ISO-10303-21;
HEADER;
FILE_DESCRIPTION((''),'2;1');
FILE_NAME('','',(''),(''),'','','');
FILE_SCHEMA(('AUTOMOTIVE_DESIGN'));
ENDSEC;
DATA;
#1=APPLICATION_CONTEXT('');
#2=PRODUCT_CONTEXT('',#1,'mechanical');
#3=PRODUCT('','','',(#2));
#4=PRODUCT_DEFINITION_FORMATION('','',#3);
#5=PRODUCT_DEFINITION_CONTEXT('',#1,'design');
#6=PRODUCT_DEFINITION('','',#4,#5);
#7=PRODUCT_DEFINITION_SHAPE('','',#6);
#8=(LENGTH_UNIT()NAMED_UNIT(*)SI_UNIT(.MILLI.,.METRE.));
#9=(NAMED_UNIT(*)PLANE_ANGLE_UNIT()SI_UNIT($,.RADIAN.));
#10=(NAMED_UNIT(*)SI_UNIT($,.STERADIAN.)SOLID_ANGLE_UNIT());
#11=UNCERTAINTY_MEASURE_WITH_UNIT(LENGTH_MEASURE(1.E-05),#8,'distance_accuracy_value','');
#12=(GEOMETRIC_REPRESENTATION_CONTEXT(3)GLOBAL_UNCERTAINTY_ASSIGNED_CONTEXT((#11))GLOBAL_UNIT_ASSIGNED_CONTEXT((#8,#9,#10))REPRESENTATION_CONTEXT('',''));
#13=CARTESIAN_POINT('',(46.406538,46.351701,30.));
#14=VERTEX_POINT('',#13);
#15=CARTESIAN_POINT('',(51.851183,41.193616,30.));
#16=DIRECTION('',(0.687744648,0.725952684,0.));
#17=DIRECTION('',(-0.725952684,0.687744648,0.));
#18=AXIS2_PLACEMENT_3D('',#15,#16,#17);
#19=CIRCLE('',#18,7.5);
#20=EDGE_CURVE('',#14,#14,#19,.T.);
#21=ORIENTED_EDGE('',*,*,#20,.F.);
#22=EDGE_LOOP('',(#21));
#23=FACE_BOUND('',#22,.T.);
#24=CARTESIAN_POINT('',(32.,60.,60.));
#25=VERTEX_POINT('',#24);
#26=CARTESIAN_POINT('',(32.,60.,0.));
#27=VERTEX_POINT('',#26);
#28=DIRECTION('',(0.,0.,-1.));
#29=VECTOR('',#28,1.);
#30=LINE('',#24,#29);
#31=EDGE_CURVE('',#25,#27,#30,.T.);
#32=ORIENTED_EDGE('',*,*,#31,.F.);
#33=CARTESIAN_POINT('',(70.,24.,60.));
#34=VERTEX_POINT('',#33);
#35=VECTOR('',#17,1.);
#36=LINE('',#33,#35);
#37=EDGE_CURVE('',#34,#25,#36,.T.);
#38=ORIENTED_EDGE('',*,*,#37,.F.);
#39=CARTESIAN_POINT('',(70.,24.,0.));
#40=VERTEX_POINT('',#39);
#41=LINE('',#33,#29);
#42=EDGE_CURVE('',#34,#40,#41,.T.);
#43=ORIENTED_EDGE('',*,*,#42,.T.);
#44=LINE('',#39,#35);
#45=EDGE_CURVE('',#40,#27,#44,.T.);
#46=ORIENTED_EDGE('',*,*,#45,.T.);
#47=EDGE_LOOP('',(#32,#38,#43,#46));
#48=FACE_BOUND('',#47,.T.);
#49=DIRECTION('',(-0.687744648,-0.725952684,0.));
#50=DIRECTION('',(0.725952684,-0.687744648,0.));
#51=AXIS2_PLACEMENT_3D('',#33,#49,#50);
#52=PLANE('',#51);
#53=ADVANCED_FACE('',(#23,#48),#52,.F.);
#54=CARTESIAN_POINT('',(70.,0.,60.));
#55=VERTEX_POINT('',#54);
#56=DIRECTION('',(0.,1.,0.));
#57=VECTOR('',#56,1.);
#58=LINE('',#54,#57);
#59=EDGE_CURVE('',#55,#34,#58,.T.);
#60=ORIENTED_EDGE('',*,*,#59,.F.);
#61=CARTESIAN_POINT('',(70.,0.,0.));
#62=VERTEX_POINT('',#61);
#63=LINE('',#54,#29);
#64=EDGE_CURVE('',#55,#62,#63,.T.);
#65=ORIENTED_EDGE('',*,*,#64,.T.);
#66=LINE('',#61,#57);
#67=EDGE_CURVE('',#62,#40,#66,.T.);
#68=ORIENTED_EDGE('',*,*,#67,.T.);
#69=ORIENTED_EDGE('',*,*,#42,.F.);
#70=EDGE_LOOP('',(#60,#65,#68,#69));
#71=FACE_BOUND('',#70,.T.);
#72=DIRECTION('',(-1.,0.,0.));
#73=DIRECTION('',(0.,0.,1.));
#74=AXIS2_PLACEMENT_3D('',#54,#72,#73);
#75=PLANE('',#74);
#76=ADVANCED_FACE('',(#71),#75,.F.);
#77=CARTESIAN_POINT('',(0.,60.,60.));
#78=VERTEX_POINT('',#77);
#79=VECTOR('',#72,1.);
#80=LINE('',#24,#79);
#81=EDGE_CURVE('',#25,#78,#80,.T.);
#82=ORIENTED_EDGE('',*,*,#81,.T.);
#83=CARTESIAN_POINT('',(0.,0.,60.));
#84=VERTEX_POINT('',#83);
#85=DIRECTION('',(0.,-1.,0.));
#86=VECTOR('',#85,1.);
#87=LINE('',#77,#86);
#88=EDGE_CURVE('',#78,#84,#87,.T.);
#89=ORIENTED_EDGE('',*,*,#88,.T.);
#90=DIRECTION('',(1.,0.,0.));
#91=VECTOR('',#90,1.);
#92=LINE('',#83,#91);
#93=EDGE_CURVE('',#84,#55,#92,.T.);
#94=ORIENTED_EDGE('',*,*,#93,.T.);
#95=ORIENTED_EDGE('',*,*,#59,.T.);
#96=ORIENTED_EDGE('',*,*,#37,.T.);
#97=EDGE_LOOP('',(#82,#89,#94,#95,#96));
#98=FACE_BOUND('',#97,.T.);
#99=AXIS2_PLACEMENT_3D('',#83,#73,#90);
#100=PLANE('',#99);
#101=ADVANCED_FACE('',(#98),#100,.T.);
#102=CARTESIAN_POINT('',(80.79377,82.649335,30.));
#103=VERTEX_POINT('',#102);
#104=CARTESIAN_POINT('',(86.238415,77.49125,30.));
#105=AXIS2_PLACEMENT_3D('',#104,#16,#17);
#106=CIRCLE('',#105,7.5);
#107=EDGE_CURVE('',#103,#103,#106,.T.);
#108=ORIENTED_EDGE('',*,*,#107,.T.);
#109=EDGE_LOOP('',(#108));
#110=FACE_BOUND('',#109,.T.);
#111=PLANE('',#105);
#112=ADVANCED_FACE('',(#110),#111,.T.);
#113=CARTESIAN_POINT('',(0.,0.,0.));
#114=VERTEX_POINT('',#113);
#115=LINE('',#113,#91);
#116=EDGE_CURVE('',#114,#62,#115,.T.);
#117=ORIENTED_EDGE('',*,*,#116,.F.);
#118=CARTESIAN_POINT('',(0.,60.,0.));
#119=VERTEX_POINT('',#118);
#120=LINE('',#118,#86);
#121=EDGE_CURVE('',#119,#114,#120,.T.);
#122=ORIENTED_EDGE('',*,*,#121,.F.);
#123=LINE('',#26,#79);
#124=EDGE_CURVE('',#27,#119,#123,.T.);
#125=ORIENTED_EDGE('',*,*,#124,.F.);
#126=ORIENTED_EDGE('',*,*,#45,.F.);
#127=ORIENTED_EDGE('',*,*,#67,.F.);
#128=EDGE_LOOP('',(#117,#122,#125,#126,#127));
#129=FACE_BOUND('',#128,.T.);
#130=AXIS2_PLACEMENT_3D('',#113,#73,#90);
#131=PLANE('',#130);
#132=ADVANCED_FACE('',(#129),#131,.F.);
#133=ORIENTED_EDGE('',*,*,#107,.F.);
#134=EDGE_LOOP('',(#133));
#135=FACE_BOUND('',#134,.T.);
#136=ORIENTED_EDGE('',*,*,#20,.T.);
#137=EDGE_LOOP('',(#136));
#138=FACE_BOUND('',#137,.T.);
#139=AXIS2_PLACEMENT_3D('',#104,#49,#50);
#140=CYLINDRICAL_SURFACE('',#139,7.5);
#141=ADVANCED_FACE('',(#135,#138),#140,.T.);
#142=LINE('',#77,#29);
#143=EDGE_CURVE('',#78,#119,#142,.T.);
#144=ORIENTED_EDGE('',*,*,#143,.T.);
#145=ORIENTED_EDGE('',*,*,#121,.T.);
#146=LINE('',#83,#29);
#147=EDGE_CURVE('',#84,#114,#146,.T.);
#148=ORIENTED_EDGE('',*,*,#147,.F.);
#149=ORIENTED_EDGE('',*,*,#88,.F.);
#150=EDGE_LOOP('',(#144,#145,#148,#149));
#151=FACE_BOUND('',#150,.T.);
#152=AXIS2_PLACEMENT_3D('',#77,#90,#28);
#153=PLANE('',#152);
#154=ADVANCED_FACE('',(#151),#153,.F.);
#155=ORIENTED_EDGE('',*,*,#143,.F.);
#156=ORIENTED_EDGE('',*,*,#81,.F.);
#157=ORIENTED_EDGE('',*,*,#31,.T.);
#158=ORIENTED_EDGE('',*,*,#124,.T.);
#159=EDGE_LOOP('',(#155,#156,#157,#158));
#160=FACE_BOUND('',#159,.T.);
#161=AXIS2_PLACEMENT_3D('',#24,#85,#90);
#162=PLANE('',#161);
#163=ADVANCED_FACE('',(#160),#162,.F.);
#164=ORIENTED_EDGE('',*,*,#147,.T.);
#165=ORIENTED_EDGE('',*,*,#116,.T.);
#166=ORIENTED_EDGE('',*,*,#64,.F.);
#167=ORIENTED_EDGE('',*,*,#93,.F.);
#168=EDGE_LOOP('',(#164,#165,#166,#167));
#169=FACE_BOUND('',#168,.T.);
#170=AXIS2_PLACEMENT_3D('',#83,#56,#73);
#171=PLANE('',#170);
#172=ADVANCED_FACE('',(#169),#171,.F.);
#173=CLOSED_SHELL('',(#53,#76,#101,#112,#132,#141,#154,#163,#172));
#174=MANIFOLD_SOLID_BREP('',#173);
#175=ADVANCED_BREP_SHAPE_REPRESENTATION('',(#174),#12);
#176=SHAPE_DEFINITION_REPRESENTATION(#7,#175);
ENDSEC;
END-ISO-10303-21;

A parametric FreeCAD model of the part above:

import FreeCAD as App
import Part
import Sketcher
from FreeCAD import Vector
Q = App.Units.Quantity

doc = App.newDocument("Part")
body = doc.addObject("PartDesign::Body", "Body")

sketch1 = body.newObject("Sketcher::SketchObject", "Sketch")
sketch1.AttachmentSupport = (doc.getObject("XY_Plane"), [""])
sketch1.MapMode = "FlatFace"
sketch1.addGeometry(Part.LineSegment(Vector(0, 0, 0), Vector(70, 0, 0)), False)
sketch1.addGeometry(Part.LineSegment(Vector(70, 0, 0), Vector(70, 24, 0)), False)
sketch1.addGeometry(Part.LineSegment(Vector(70, 24, 0), Vector(32, 60, 0)), False)
sketch1.addGeometry(Part.LineSegment(Vector(32, 60, 0), Vector(0, 60, 0)), False)
sketch1.addGeometry(Part.LineSegment(Vector(0, 60, 0), Vector(0, 0, 0)), False)
sketch1.addConstraint(Sketcher.Constraint("Coincident", 0, 2, 1, 1))
sketch1.addConstraint(Sketcher.Constraint("Coincident", 1, 2, 2, 1))
sketch1.addConstraint(Sketcher.Constraint("Coincident", 2, 2, 3, 1))
sketch1.addConstraint(Sketcher.Constraint("Coincident", 3, 2, 4, 1))
sketch1.addConstraint(Sketcher.Constraint("Coincident", 4, 2, 0, 1))
sketch1.addConstraint(Sketcher.Constraint("Horizontal", 0))
sketch1.addConstraint(Sketcher.Constraint("Vertical", 1))
sketch1.addConstraint(Sketcher.Constraint("Horizontal", 3))
sketch1.addConstraint(Sketcher.Constraint("Vertical", 4))
sketch1.addConstraint(Sketcher.Constraint("Coincident", 4, 2, -1, 1))
sketch1.addConstraint(Sketcher.Constraint("DistanceX", 0, 1, 0, 2, Q("70 mm")))
sketch1.addConstraint(Sketcher.Constraint("DistanceX", 3, 2, 3, 1, Q("32 mm")))
sketch1.addConstraint(Sketcher.Constraint("DistanceY", 1, 1, 1, 2, Q("24 mm")))
sketch1.addConstraint(Sketcher.Constraint("DistanceY", 4, 2, 4, 1, Q("60 mm")))
pad1 = body.newObject("PartDesign::Pad", "Pad")
pad1.Profile = sketch1
pad1.Length = 60

sketch2 = body.newObject("Sketcher::SketchObject", "Sketch001")
sketch2.Placement = App.Placement(Vector(45.091971, 47.59708, 0), App.Rotation(Vector(0.725952684, -0.687744648, 0), Vector(0, 0, -1), Vector(0.687744648, 0.725952684, 0), "ZXY"))
sketch2.addGeometry(Part.Circle(Vector(9, -30, 0), Vector(0, 0, 1), 8), False)
sketch2.addConstraint(Sketcher.Constraint("Diameter", 0, Q("15 mm")))
sketch2.addConstraint(Sketcher.Constraint("DistanceY", 0, 3, -1, 1, Q("30 mm")))
sketch2.addConstraint(Sketcher.Constraint("DistanceX", -1, 1, 0, 3, Q("9.310816 mm")))
pad2 = body.newObject("PartDesign::Pad", "Pad001")
pad2.Profile = sketch2
pad2.Length = 50

doc.recompute()
